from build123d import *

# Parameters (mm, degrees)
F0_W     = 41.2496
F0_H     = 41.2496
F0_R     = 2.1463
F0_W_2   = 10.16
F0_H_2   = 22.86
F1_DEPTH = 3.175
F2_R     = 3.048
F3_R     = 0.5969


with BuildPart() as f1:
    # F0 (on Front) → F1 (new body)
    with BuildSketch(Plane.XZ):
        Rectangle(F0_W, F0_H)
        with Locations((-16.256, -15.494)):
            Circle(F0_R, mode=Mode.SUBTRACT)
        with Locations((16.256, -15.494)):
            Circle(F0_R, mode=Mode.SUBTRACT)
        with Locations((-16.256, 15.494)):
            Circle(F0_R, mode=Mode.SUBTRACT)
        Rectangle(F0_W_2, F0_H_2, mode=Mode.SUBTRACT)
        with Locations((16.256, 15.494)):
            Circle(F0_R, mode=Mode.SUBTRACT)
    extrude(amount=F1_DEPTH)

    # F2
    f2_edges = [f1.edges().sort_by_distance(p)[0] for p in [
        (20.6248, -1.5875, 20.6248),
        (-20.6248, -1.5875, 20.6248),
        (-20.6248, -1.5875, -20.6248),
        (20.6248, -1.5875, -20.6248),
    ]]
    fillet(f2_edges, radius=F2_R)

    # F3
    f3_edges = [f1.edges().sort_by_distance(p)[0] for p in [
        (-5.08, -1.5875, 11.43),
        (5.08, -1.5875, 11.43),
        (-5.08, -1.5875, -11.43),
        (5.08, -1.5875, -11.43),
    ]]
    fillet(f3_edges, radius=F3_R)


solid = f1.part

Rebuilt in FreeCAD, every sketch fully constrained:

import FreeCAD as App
import Part
import Sketcher

V = App.Vector
Q = App.Units.Quantity


def edges_at(feature, points):
    """Names of the edges that pass closest to the given points."""
    edges = feature.Shape.Edges
    near = lambda p: min(range(len(edges)), key=lambda i: edges[i].distToShape(Part.Vertex(*p))[0])
    return sorted({f"Edge{near(p) + 1}" for p in points})

doc = App.newDocument("Part")
body = doc.addObject("PartDesign::Body", "Body")

# Sketch on XZ plane
sketch1 = body.newObject("Sketcher::SketchObject", "Sketch")
sketch1.AttachmentSupport = (doc.getObject("XZ_Plane"), [""])
sketch1.MapMode = "FlatFace"
sketch1.addGeometry([
    Part.LineSegment(V(-20.6, 20.6, 0), V(-20.6, -20.6, 0)),  # 0
    Part.LineSegment(V(-20.6, -20.6, 0), V(20.6, -20.6, 0)),  # 1
    Part.LineSegment(V(20.6, -20.6, 0), V(20.6, 20.6, 0)),  # 2
    Part.LineSegment(V(20.6, 20.6, 0), V(-20.6, 20.6, 0)),  # 3
    Part.Circle(V(-16.3, -15.5, 0), V(0, 0, 1), 2.1),  # 4
    Part.Circle(V(16.3, -15.5, 0), V(0, 0, 1), 2.1),  # 5
    Part.Circle(V(-16.3, 15.5, 0), V(0, 0, 1), 2.1),  # 6
    Part.LineSegment(V(5.1, -11.4, 0), V(-5.1, -11.4, 0)),  # 7
    Part.LineSegment(V(-5.1, -11.4, 0), V(-5.1, 11.4, 0)),  # 8
    Part.LineSegment(V(-5.1, 11.4, 0), V(5.1, 11.4, 0)),  # 9
    Part.LineSegment(V(5.1, 11.4, 0), V(5.1, -11.4, 0)),  # 10
    Part.Circle(V(16.3, 15.5, 0), V(0, 0, 1), 2.1),  # 11
], False)
sketch1.addConstraint([
    Sketcher.Constraint("Coincident", 0, 2, 1, 1),
    Sketcher.Constraint("Coincident", 1, 2, 2, 1),
    Sketcher.Constraint("Coincident", 2, 2, 3, 1),
    Sketcher.Constraint("Coincident", 3, 2, 0, 1),
    Sketcher.Constraint("Coincident", 7, 2, 8, 1),
    Sketcher.Constraint("Coincident", 8, 2, 9, 1),
    Sketcher.Constraint("Coincident", 9, 2, 10, 1),
    Sketcher.Constraint("Coincident", 10, 2, 7, 1),
    Sketcher.Constraint("Vertical", 0),
    Sketcher.Constraint("Horizontal", 1),
    Sketcher.Constraint("Vertical", 2),
    Sketcher.Constraint("Horizontal", 3),
    Sketcher.Constraint("Horizontal", 7),
    Sketcher.Constraint("Vertical", 8),
    Sketcher.Constraint("Horizontal", 9),
    Sketcher.Constraint("Vertical", 10),
    Sketcher.Constraint("Equal", 4, 5),
    Sketcher.Constraint("Equal", 5, 6),
    Sketcher.Constraint("Equal", 6, 11),
    Sketcher.Constraint("Symmetric", 5, 3, 6, 3, -1, 1),
    Sketcher.Constraint("Symmetric", 4, 3, 11, 3, -1, 1),
    Sketcher.Constraint("Symmetric", 0, 2, 2, 2, -1, 1),
    Sketcher.Constraint("Symmetric", 7, 2, 9, 2, -1, 1),
    Sketcher.Constraint("Symmetric", 4, 3, 5, 3, -2),
    Sketcher.Constraint("Equal", 3, 0),
    Sketcher.Constraint("Diameter", 4, Q("0.169 in")),
    Sketcher.Constraint("DistanceX", 7, 2, 7, 1, Q("0.4 in")),
    Sketcher.Constraint("DistanceY", 8, 1, 8, 2, Q("0.9 in")),
    Sketcher.Constraint("DistanceX", 1, 1, 1, 2, Q("1.624 in")),
    Sketcher.Constraint("DistanceX", 4, 3, -1, 1, Q("0.64 in")),
    Sketcher.Constraint("DistanceY", 4, 3, -1, 1, Q("0.61 in")),
])
pad1 = body.newObject("PartDesign::Pad", "Pad")
pad1.Profile = sketch1
pad1.Length = Q("0.125 in")
doc.recompute()

fillet = body.newObject("PartDesign::Fillet", "Fillet")
fillet.Base = (pad1, edges_at(pad1, [
    (20.625, -1.587, 20.625),
    (-20.625, -1.587, 20.625),
    (-20.625, -1.587, -20.625),
    (20.625, -1.587, -20.625),
]))
fillet.Radius = Q("0.12 in")
doc.recompute()

fillet2 = body.newObject("PartDesign::Fillet", "Fillet001")
fillet2.Base = (fillet, edges_at(fillet, [
    (-5.08, -1.587, 11.43),
    (5.08, -1.587, 11.43),
    (-5.08, -1.587, -11.43),
    (5.08, -1.587, -11.43),
]))
fillet2.Radius = Q("0.0235 in")

doc.recompute()
